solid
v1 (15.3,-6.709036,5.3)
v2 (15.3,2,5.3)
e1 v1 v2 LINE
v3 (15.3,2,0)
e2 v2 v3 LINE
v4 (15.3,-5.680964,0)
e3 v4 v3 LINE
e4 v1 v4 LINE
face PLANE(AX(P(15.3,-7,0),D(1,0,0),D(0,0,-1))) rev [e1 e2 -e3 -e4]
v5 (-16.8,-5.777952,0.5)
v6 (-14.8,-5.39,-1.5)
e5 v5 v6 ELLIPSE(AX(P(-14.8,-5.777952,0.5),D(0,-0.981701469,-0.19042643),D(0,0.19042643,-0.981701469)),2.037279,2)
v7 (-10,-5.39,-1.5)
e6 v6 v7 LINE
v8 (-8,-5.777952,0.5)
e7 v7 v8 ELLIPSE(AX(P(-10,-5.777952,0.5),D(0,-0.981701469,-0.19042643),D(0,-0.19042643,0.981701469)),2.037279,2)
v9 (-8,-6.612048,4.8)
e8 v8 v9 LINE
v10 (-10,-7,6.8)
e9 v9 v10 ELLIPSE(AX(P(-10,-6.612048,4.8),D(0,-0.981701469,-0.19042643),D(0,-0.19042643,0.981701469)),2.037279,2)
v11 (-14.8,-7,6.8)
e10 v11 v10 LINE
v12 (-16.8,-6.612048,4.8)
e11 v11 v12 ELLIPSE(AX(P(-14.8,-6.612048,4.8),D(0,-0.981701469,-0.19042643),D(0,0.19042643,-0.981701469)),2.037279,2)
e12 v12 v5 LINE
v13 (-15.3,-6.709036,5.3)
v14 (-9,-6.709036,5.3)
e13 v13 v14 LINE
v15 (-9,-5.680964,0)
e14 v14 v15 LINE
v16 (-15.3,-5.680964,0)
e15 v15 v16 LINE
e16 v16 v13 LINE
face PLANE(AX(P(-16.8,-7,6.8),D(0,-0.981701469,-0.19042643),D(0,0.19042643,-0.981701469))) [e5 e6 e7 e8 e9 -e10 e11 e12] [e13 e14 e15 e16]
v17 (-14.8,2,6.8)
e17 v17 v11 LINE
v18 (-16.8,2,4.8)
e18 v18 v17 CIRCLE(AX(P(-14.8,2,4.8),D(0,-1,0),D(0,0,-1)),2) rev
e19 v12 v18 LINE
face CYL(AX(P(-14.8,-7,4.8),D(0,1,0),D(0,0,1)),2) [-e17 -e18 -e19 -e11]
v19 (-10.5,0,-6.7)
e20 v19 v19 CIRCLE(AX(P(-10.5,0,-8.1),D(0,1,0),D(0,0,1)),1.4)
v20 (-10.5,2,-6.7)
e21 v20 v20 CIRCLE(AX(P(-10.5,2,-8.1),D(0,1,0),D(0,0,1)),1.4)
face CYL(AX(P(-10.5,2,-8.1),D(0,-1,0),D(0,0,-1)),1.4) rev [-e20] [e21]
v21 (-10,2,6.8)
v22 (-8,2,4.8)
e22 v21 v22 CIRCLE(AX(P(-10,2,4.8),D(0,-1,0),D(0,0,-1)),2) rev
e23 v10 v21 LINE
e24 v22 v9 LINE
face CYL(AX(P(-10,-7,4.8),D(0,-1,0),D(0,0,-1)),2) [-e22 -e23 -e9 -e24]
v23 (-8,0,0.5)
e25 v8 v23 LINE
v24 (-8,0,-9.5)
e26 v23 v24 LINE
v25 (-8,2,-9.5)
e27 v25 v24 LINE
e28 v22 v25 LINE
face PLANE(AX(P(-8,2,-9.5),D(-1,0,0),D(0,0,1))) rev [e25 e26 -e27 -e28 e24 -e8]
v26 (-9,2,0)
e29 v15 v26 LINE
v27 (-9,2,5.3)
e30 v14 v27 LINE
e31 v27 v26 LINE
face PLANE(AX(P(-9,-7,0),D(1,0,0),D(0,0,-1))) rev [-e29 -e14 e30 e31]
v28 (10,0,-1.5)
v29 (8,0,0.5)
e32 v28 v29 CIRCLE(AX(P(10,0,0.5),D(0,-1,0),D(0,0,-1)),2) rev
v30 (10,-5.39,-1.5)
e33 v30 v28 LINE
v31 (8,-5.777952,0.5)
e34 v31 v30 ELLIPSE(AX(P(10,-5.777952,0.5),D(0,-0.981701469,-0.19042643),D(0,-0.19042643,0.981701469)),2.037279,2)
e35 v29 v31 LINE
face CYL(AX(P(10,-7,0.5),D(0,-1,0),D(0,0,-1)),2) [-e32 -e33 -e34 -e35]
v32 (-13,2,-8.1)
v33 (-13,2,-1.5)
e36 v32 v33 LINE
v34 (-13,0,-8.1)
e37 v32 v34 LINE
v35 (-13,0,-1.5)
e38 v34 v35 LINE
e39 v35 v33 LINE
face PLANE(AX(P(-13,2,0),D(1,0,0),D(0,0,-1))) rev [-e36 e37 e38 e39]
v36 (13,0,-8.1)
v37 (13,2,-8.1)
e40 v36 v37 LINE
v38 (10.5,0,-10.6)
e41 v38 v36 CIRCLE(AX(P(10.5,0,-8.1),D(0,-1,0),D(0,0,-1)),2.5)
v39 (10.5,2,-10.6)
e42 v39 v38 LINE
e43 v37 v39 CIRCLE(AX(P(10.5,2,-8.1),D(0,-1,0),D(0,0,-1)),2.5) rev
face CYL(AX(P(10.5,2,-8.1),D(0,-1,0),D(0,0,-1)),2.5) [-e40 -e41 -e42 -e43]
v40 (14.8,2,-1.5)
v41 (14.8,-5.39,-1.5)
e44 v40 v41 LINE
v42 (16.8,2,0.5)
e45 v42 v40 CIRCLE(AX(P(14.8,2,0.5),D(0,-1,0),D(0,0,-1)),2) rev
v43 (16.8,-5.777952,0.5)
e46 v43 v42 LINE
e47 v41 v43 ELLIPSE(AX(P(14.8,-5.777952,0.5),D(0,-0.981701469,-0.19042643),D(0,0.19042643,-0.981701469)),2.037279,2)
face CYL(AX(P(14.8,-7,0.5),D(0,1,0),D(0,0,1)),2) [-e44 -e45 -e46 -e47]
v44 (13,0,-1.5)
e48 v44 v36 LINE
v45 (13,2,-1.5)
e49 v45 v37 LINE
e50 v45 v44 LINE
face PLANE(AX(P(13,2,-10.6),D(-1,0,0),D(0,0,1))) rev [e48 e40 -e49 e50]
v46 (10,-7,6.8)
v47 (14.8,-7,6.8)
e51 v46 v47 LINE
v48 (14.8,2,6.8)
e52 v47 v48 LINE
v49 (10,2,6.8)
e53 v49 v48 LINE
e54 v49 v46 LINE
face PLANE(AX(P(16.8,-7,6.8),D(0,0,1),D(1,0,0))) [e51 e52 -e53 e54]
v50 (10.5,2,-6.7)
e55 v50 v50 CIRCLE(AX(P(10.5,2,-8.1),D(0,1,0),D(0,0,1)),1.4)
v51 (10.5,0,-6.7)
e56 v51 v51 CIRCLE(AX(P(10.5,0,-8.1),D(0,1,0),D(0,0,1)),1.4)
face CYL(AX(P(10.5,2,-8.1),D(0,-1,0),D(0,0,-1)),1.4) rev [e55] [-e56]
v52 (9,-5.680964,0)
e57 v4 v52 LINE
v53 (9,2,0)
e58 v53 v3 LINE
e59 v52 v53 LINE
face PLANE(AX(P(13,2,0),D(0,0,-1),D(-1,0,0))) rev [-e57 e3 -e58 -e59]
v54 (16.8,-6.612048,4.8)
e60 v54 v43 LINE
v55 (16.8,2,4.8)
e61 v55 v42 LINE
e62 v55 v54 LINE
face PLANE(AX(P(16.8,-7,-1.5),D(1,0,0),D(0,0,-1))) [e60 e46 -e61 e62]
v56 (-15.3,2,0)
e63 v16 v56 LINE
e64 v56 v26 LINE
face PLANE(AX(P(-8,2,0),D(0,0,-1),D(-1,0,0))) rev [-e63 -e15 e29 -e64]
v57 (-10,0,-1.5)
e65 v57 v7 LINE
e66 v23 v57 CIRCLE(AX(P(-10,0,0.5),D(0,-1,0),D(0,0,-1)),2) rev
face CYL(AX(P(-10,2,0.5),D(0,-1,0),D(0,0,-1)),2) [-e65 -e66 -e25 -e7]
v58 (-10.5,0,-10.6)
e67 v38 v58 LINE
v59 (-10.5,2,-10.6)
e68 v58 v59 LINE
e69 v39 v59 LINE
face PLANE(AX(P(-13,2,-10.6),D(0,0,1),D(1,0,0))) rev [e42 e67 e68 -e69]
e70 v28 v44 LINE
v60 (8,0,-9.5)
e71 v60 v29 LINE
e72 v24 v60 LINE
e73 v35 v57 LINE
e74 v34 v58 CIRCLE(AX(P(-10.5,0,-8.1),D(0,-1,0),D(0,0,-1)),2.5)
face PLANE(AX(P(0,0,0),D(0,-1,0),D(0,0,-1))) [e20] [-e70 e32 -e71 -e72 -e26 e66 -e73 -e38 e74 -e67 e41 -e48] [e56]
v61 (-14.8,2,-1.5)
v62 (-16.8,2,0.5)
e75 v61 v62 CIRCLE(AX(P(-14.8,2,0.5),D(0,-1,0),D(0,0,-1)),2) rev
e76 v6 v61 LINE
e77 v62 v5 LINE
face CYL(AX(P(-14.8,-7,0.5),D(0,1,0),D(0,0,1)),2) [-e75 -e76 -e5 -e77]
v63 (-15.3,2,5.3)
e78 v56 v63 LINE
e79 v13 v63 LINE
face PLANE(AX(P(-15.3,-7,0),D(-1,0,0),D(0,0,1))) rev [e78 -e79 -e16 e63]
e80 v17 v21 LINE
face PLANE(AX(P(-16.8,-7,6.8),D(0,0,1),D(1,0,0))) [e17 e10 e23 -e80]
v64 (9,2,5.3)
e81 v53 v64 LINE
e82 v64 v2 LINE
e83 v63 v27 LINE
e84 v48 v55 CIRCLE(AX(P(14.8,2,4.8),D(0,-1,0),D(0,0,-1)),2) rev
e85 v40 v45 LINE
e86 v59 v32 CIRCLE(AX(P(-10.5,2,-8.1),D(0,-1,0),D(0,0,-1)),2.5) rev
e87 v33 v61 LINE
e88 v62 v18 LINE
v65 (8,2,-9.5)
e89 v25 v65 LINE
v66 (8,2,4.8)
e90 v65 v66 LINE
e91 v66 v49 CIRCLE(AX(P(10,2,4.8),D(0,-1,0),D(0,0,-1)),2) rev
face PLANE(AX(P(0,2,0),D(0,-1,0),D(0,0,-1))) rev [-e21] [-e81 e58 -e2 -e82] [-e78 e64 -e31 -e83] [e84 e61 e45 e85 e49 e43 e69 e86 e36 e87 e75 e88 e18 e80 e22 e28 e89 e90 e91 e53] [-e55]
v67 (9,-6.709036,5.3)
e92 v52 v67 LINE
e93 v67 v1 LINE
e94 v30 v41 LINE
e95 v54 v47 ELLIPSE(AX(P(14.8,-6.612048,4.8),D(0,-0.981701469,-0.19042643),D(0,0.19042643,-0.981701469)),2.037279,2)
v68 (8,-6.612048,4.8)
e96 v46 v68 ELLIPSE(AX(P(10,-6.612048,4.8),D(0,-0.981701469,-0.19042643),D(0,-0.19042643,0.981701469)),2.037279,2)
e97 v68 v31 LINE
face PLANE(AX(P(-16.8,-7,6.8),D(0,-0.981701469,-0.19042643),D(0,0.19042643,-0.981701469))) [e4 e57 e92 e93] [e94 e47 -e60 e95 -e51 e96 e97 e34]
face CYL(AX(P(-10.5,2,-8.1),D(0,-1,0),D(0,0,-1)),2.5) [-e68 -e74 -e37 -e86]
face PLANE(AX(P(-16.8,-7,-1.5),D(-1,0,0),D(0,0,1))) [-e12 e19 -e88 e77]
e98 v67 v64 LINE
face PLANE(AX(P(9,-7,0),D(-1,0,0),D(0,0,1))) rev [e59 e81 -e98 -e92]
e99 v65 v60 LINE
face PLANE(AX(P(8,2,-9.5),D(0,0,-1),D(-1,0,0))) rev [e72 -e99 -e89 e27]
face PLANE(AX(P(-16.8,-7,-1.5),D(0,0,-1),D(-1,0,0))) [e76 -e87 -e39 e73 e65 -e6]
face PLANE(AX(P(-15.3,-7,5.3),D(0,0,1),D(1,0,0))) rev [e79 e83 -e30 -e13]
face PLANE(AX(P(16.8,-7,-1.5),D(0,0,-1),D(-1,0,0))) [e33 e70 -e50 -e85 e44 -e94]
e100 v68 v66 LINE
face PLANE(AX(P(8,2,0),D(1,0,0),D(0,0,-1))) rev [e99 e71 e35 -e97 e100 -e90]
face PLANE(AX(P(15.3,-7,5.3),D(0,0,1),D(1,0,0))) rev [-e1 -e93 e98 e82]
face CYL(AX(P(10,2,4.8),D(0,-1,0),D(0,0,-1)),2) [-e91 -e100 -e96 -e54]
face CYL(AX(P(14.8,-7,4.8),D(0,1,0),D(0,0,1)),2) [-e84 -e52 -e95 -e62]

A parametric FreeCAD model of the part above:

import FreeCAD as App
import Part
import Sketcher

V = App.Vector


def edges_at(feature, points):
    """Names of the edges that pass closest to the given points."""
    edges = feature.Shape.Edges
    near = lambda p: min(range(len(edges)), key=lambda i: edges[i].distToShape(Part.Vertex(*p))[0])
    return sorted({f"Edge{near(p) + 1}" for p in points})


def add_polygon(sketch, points):
    """Adds a closed chain of lines whose ends are joined by coincident constraints."""
    first, n = sketch.GeometryCount, len(points)
    for a, b in zip(points, points[1:] + points[:1]):
        sketch.addGeometry(Part.LineSegment(App.Vector(*a, 0), App.Vector(*b, 0)), False)
    for i in range(n):
        sketch.addConstraint(Sketcher.Constraint("Coincident", first + i, 2, first + (i + 1) % n, 1))

doc = App.newDocument("Part")
body = doc.addObject("PartDesign::Body", "Body")

# Sketch on XZ plane
sketch1 = doc.addObject("Sketcher::SketchObject", "Sketch")
body.addObject(sketch1)
sketch1.AttachmentSupport = (doc.XZ_Plane, [""])
sketch1.MapMode = "FlatFace"
add_polygon(sketch1, [(-13, -10.6), (-13, 0), (-8, 0), (-8, -9.5), (8, -9.5), (8, 0), (13, 0), (13, -10.6)])  # lines 0-7
sketch1.addGeometry(Part.Circle(V(10.5, -8.1, 0), V(0, 0, 1), 1.4), False)  # 8
sketch1.addGeometry(Part.Circle(V(-10.5, -8.1, 0), V(0, 0, 1), 1.4), False)  # 9
sketch1.addConstraint([
    Sketcher.Constraint("Vertical", 0),
    Sketcher.Constraint("Horizontal", 1),
    Sketcher.Constraint("Vertical", 2),
    Sketcher.Constraint("Horizontal", 3),
    Sketcher.Constraint("Vertical", 4),
    Sketcher.Constraint("Horizontal", 5),
    Sketcher.Constraint("Vertical", 6),
    Sketcher.Constraint("Horizontal", 7),
    Sketcher.Constraint("Equal", 8, 9),
    Sketcher.Constraint("Symmetric", 1, 2, 4, 2, -1, 1),
    Sketcher.Constraint("Symmetric", 8, 3, 9, 3, -2),
    Sketcher.Constraint("Symmetric", 0, 2, 5, 2, -2),
    Sketcher.Constraint("Diameter", 8, 2.8),
    Sketcher.Constraint("DistanceX", 1, 1, 1, 2, 5.0),
    Sketcher.Constraint("DistanceX", 3, 1, 3, 2, 16.0),
    Sketcher.Constraint("DistanceY", 0, 1, 0, 2, 10.6),
    Sketcher.Constraint("DistanceY", 2, 2, 2, 1, 9.5),
    Sketcher.Constraint("DistanceX", 9, 3, 8, 3, 21.0),
    Sketcher.Constraint("DistanceY", 8, 3, -1, 1, 8.1),
])
pad1 = doc.addObject("PartDesign::Pad", "Pad")
body.addObject(pad1)
pad1.Profile = sketch1
pad1.Length = 2
pad1.Reversed = True
doc.recompute()

fillet = doc.addObject("PartDesign::Fillet", "Fillet")
body.addObject(fillet)
fillet.Base = (pad1, edges_at(pad1, [(-13, 1, -10.6), (13, 1, -10.6)]))
fillet.Radius = 2.5

# Sketch on XZ plane
sketch2 = doc.addObject("Sketcher::SketchObject", "Sketch001")
body.addObject(sketch2)
sketch2.AttachmentSupport = (doc.XZ_Plane, [""])
sketch2.MapMode = "FlatFace"
sketch2.AttachmentOffset = App.Placement(V(0, 0, -2), App.Rotation())
add_polygon(sketch2, [(-17, -2), (-17, 7), (-8, 7), (-8, -2)])  # lines 0-3
add_polygon(sketch2, [(-9, 5), (-15, 5), (-15, 0), (-9, 0)])  # lines 4-7
add_polygon(sketch2, [(8, -2), (8, 7), (17, 7), (17, -2)])  # lines 8-11
add_polygon(sketch2, [(15, 5), (9, 5), (9, 0), (15, 0)])  # lines 12-15
sketch2.addConstraint([
    Sketcher.Constraint("Vertical", 0),
    Sketcher.Constraint("Horizontal", 1),
    Sketcher.Constraint("Vertical", 2),
    Sketcher.Constraint("Horizontal", 3),
    Sketcher.Constraint("Horizontal", 4),
    Sketcher.Constraint("Vertical", 5),
    Sketcher.Constraint("Horizontal", 6),
    Sketcher.Constraint("Vertical", 7),
    Sketcher.Constraint("Vertical", 8),
    Sketcher.Constraint("Horizontal", 9),
    Sketcher.Constraint("Vertical", 10),
    Sketcher.Constraint("Horizontal", 11),
    Sketcher.Constraint("Horizontal", 12),
    Sketcher.Constraint("Vertical", 13),
    Sketcher.Constraint("Horizontal", 14),
    Sketcher.Constraint("Vertical", 15),
    Sketcher.Constraint("Symmetric", 6, 2, 13, 2, -1, 1),
    Sketcher.Constraint("Symmetric", 1, 2, 8, 2, -2),
    Sketcher.Constraint("Symmetric", 3, 2, 10, 2, -2),
    Sketcher.Constraint("Symmetric", 5, 2, 14, 2, -2),
    Sketcher.Constraint("Horizontal", 7, 2, 12, 2),
    Sketcher.Constraint("DistanceX", 1, 1, 1, 2, 8.8),
    Sketcher.Constraint("DistanceX", 4, 2, 4, 1, 6.3),
    Sketcher.Constraint("DistanceY", 0, 1, 0, 2, 8.3),
    Sketcher.Constraint("DistanceY", 5, 2, 5, 1, 5.3),
    Sketcher.Constraint("DistanceX", 1, 2, -1, 1, 8.0),
    Sketcher.Constraint("DistanceX", 6, 2, -1, 1, 9.0),
    Sketcher.Constraint("DistanceY", -1, 1, 0, 2, 6.8),
])
pad2 = doc.addObject("PartDesign::Pad", "Pad001")
body.addObject(pad2)
pad2.Profile = sketch2
pad2.Length = 9

# Sketch on YZ plane
sketch3 = doc.addObject("Sketcher::SketchObject", "Sketch002")
body.addObject(sketch3)
sketch3.AttachmentSupport = (doc.YZ_Plane, [""])
sketch3.MapMode = "FlatFace"
sketch3.AttachmentOffset = App.Placement(V(0, 0, -16.8), App.Rotation())
add_polygon(sketch3, [(-7, -37), (-7, 7), (-5, -2), (1, -36), (7, -107), (-1, -108)])  # lines 0-5
sketch3.addConstraint([
    Sketcher.Constraint("Vertical", 0),
    Sketcher.Constraint("Parallel", 1, 2),
    Sketcher.Constraint("Perpendicular", 3, 4),
    Sketcher.Constraint("Perpendicular", 4, 5),
    Sketcher.Constraint("Equal", 3, 5),
    Sketcher.Constraint("DistanceX", 0, 2, -1, 1, 7.0),
    Sketcher.Constraint("DistanceY", -1, 1, 0, 2, 6.8),
    Sketcher.Constraint("DistanceY", 1, 2, -1, 1, 1.5),
    Sketcher.Constraint("DistanceX", 1, 2, -1, 1, 5.39),
    Sketcher.Constraint("DistanceY", 0, 1, 0, 2, 43.897656),
    Sketcher.Constraint("DistanceY", 2, 2, -1, 1, 36.446271),
    Sketcher.Constraint("DistanceX", 4, 2, -1, 1, 1.488279),
])
pocket1 = doc.addObject("PartDesign::Pocket", "Pocket")
body.addObject(pocket1)
pocket1.Profile = sketch3
pocket1.Type = "ThroughAll"
pocket1.Reversed = True
doc.recompute()

fillet2 = doc.addObject("PartDesign::Fillet", "Fillet001")
body.addObject(fillet2)
fillet2.Base = (pocket1, edges_at(pocket1, [
    (16.8, -1.695, -1.5),
    (8, -2.695, -1.5),
    (-8, -2.695, -1.5),
    (-16.8, -1.695, -1.5),
    (-16.8, -2.5, 6.8),
    (-8, -2.5, 6.8),
    (16.8, -2.5, 6.8),
    (8, -2.5, 6.8),
]))
fillet2.Radius = 2

doc.recompute()
